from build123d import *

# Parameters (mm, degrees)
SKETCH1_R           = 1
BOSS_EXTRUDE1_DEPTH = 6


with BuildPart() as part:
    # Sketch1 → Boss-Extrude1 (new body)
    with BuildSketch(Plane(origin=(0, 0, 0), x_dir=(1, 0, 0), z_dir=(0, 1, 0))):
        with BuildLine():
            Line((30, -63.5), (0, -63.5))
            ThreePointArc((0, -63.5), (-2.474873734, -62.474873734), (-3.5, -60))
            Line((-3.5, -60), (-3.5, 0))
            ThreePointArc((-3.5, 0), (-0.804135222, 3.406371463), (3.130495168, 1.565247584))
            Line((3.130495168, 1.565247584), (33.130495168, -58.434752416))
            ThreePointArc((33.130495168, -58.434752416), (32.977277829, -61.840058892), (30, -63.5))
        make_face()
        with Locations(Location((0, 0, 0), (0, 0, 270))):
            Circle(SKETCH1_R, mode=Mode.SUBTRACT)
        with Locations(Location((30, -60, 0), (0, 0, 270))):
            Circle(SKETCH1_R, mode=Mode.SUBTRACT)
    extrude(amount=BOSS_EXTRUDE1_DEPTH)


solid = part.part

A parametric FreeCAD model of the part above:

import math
import FreeCAD as App
import Part
import Sketcher
Q = App.Units.Quantity

doc = App.newDocument("Part")
body = doc.addObject("PartDesign::Body", "Body")

sketch1 = body.newObject("Sketcher::SketchObject", "Sketch")
sketch1.AttachmentSupport = (doc.getObject("XZ_Plane"), [""])
sketch1.MapMode = "FlatFace"
sketch1.addGeometry(Part.LineSegment(App.Vector(0, 63.5, 0), App.Vector(30, 63.5, 0)), False)
sketch1.addGeometry(Part.ArcOfCircle(Part.Circle(App.Vector(30, 60, 0), App.Vector(0, 0, 1), 3.5), math.radians(-27), math.radians(90)), False)
sketch1.addGeometry(Part.LineSegment(App.Vector(33.1, 58.4, 0), App.Vector(3.1, -1.6, 0)), False)
sketch1.addGeometry(Part.ArcOfCircle(Part.Circle(App.Vector(0, 0, 0), App.Vector(0, 0, 1), 3.5), math.radians(180), math.radians(333)), False)
sketch1.addGeometry(Part.LineSegment(App.Vector(-3.5, 0, 0), App.Vector(-3.5, 60, 0)), False)
sketch1.addGeometry(Part.ArcOfCircle(Part.Circle(App.Vector(0, 60, 0), App.Vector(0, 0, 1), 3.5), math.radians(90), math.radians(180)), False)
sketch1.addGeometry(Part.Circle(App.Vector(30, 60, 0), App.Vector(0, 0, 1), 1), False)
sketch1.addGeometry(Part.Circle(App.Vector(0, 0, 0), App.Vector(0, 0, 1), 1), False)
sketch1.addConstraint(Sketcher.Constraint("Tangent", 0, 2, 1, 2))
sketch1.addConstraint(Sketcher.Constraint("Tangent", 1, 1, 2, 1))
sketch1.addConstraint(Sketcher.Constraint("Tangent", 2, 2, 3, 2))
sketch1.addConstraint(Sketcher.Constraint("Tangent", 3, 1, 4, 1))
sketch1.addConstraint(Sketcher.Constraint("Tangent", 4, 2, 5, 2))
sketch1.addConstraint(Sketcher.Constraint("Tangent", 5, 1, 0, 1))
sketch1.addConstraint(Sketcher.Constraint("Horizontal", 0))
sketch1.addConstraint(Sketcher.Constraint("Vertical", 4))
sketch1.addConstraint(Sketcher.Constraint("Coincident", 3, 3, -1, 1))
sketch1.addConstraint(Sketcher.Constraint("Coincident", 7, 3, -1, 1))
sketch1.addConstraint(Sketcher.Constraint("Coincident", 6, 3, 1, 3))
sketch1.addConstraint(Sketcher.Constraint("Equal", 1, 3))
sketch1.addConstraint(Sketcher.Constraint("Equal", 3, 5))
sketch1.addConstraint(Sketcher.Constraint("Equal", 6, 7))
sketch1.addConstraint(Sketcher.Constraint("Diameter", 6, Q("2 mm")))
sketch1.addConstraint(Sketcher.Constraint("Radius", 1, Q("3.5 mm")))
sketch1.addConstraint(Sketcher.Constraint("DistanceX", 0, 1, 0, 2, Q("30 mm")))
sketch1.addConstraint(Sketcher.Constraint("DistanceY", 4, 1, 4, 2, Q("60 mm")))
pad1 = body.newObject("PartDesign::Pad", "Pad")
pad1.Profile = sketch1
pad1.Length = 6
pad1.Reversed = True

doc.recompute()
